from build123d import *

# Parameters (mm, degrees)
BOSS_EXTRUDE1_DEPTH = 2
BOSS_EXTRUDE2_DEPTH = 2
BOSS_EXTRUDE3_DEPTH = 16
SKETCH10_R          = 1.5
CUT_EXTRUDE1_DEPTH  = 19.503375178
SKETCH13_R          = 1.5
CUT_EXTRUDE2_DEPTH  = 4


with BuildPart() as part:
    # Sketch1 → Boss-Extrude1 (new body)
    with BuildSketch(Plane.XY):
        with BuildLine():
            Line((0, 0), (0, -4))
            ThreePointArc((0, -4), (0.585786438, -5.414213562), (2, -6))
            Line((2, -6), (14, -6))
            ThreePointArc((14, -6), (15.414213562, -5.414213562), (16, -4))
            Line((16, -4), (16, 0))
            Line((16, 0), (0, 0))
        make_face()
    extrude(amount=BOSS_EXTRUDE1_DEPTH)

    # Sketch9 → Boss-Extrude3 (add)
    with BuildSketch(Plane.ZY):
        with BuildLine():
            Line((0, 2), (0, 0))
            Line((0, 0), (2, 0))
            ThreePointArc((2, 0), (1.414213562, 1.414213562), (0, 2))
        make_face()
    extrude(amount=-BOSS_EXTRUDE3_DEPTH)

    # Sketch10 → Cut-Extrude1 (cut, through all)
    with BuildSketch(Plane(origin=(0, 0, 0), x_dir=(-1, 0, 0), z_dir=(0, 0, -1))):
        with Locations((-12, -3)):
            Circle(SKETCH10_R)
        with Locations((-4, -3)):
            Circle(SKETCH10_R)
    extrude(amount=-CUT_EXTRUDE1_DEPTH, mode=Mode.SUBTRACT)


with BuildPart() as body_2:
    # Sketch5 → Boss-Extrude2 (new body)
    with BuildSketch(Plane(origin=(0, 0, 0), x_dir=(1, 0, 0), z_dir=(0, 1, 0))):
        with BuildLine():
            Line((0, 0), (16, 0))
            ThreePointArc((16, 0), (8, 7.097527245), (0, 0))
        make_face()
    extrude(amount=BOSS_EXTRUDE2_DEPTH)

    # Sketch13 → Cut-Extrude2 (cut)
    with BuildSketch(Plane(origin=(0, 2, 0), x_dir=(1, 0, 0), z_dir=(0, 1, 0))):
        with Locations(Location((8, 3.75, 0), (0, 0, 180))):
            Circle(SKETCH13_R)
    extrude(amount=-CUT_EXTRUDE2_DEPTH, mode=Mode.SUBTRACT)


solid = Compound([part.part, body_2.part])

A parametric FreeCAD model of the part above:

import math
import FreeCAD as App
import Part
import Sketcher

V = App.Vector
Q = App.Units.Quantity

doc = App.newDocument("Part")
body = doc.addObject("PartDesign::Body", "Body")

# Sketch on XY plane
sketch1 = body.newObject("Sketcher::SketchObject", "Sketch")
sketch1.AttachmentSupport = (doc.getObject("XY_Plane"), [""])
sketch1.MapMode = "FlatFace"
sketch1.addGeometry([
    Part.LineSegment(V(0, 0, 0), V(0, -4, 0)),  # 0
    Part.ArcOfCircle(Part.Circle(V(2, -4, 0), V(0, 0, 1), 2), math.radians(-180), math.radians(-90)),  # 1
    Part.LineSegment(V(2, -6, 0), V(14, -6, 0)),  # 2
    Part.ArcOfCircle(Part.Circle(V(14, -4, 0), V(0, 0, 1), 2), math.radians(-90), math.radians(0)),  # 3
    Part.LineSegment(V(16, -4, 0), V(16, 0, 0)),  # 4
    Part.LineSegment(V(16, 0, 0), V(0, 0, 0)),  # 5
], False)
sketch1.addConstraint([
    Sketcher.Constraint("Tangent", 0, 2, 1, 1),
    Sketcher.Constraint("Tangent", 1, 2, 2, 1),
    Sketcher.Constraint("Tangent", 2, 2, 3, 1),
    Sketcher.Constraint("Tangent", 3, 2, 4, 1),
    Sketcher.Constraint("Coincident", 4, 2, 5, 1),
    Sketcher.Constraint("Coincident", 5, 2, 0, 1),
    Sketcher.Constraint("Vertical", 0),
    Sketcher.Constraint("Horizontal", 2),
    Sketcher.Constraint("Vertical", 4),
    Sketcher.Constraint("Horizontal", 5),
    Sketcher.Constraint("Coincident", 5, 2, -1, 1),
    Sketcher.Constraint("Equal", 1, 3),
    Sketcher.Constraint("Radius", 1, Q("2 mm")),
    Sketcher.Constraint("DistanceX", 2, 1, 2, 2, Q("12 mm")),
    Sketcher.Constraint("DistanceY", 0, 2, 0, 1, Q("4 mm")),
])
pad1 = body.newObject("PartDesign::Pad", "Pad")
pad1.Profile = sketch1
pad1.Length = 2

# Sketch on YZ plane
sketch2 = body.newObject("Sketcher::SketchObject", "Sketch001")
sketch2.AttachmentSupport = (doc.getObject("YZ_Plane"), [""])
sketch2.MapMode = "FlatFace"
sketch2.addGeometry([
    Part.LineSegment(V(2, 0, 0), V(0, 0, 0)),
    Part.LineSegment(V(0, 0, 0), V(0, 2, 0)),
    Part.ArcOfCircle(Part.Circle(V(0, 0, 0), V(0, 0, 1), 2), math.radians(0), math.radians(90)),
], False)
sketch2.addConstraint([
    Sketcher.Constraint("Coincident", 0, 2, 1, 1),
    Sketcher.Constraint("Coincident", 1, 2, 2, 2),
    Sketcher.Constraint("Coincident", 2, 1, 0, 1),
    Sketcher.Constraint("Horizontal", 0),
    Sketcher.Constraint("Vertical", 1),
    Sketcher.Constraint("Coincident", 2, 3, -1, 1),
    Sketcher.Constraint("Coincident", 0, 2, -1, 1),
    Sketcher.Constraint("Radius", 2, Q("2 mm")),
])
pad2 = body.newObject("PartDesign::Pad", "Pad001")
pad2.Profile = sketch2
pad2.Length = 16

# Sketch on XY plane
sketch3 = body.newObject("Sketcher::SketchObject", "Sketch002")
sketch3.AttachmentSupport = (doc.getObject("XY_Plane"), [""])
sketch3.MapMode = "FlatFace"
sketch3.addGeometry([
    Part.Circle(V(12, -3, 0), V(0, 0, 1), 1.5),
    Part.Circle(V(4, -3, 0), V(0, 0, 1), 1.5),
], False)
sketch3.addConstraint([
    Sketcher.Constraint("Equal", 0, 1),
    Sketcher.Constraint("Horizontal", 0, 3, 1, 3),
    Sketcher.Constraint("Diameter", 0, Q("3 mm")),
    Sketcher.Constraint("DistanceX", -1, 1, 0, 3, Q("12 mm")),
    Sketcher.Constraint("DistanceY", 0, 3, -1, 1, Q("3 mm")),
    Sketcher.Constraint("DistanceX", -1, 1, 1, 3, Q("4 mm")),
])
pocket1 = body.newObject("PartDesign::Pocket", "Pocket")
pocket1.Profile = sketch3
pocket1.Type = "ThroughAll"
pocket1.Reversed = True
body2 = doc.addObject("PartDesign::Body", "Body001")

# Sketch on XZ plane
sketch4 = body2.newObject("Sketcher::SketchObject", "Sketch003")
sketch4.AttachmentSupport = (doc.getObject("XZ_Plane001"), [""])
sketch4.MapMode = "FlatFace"
sketch4.addGeometry([
    Part.LineSegment(V(0, 0, 0), V(16, 0, 0)),
    Part.ArcOfCircle(Part.Circle(V(8, 1, 0), V(0, 0, 1), 8), math.radians(-173), math.radians(-7)),
], False)
sketch4.addConstraint([
    Sketcher.Constraint("Coincident", 0, 1, 1, 1),
    Sketcher.Constraint("Coincident", 1, 2, 0, 2),
    Sketcher.Constraint("Horizontal", 0),
    Sketcher.Constraint("Coincident", 0, 1, -1, 1),
    Sketcher.Constraint("DistanceX", 0, 1, 0, 2, Q("16 mm")),
    Sketcher.Constraint("Radius", 1, Q("8.057376 mm")),
])
pad3 = body2.newObject("PartDesign::Pad", "Pad002")
pad3.Profile = sketch4
pad3.Length = 2
pad3.Reversed = True

# Sketch on XZ plane
sketch5 = body2.newObject("Sketcher::SketchObject", "Sketch004")
sketch5.AttachmentSupport = (doc.getObject("XZ_Plane001"), [""])
sketch5.MapMode = "FlatFace"
sketch5.AttachmentOffset = App.Placement(V(0, 0, -2), App.Rotation())
sketch5.addGeometry(Part.Circle(V(8, -3.8, 0), V(0, 0, 1), 1.5), False)
sketch5.addConstraint([
    Sketcher.Constraint("Diameter", 0, Q("3 mm")),
    Sketcher.Constraint("DistanceX", -1, 1, 0, 3, Q("8 mm")),
    Sketcher.Constraint("DistanceY", 0, 3, -1, 1, Q("3.75 mm")),
])
pocket2 = body2.newObject("PartDesign::Pocket", "Pocket001")
pocket2.Profile = sketch5
pocket2.Length = 4
pocket2.Reversed = True

doc.recompute()
